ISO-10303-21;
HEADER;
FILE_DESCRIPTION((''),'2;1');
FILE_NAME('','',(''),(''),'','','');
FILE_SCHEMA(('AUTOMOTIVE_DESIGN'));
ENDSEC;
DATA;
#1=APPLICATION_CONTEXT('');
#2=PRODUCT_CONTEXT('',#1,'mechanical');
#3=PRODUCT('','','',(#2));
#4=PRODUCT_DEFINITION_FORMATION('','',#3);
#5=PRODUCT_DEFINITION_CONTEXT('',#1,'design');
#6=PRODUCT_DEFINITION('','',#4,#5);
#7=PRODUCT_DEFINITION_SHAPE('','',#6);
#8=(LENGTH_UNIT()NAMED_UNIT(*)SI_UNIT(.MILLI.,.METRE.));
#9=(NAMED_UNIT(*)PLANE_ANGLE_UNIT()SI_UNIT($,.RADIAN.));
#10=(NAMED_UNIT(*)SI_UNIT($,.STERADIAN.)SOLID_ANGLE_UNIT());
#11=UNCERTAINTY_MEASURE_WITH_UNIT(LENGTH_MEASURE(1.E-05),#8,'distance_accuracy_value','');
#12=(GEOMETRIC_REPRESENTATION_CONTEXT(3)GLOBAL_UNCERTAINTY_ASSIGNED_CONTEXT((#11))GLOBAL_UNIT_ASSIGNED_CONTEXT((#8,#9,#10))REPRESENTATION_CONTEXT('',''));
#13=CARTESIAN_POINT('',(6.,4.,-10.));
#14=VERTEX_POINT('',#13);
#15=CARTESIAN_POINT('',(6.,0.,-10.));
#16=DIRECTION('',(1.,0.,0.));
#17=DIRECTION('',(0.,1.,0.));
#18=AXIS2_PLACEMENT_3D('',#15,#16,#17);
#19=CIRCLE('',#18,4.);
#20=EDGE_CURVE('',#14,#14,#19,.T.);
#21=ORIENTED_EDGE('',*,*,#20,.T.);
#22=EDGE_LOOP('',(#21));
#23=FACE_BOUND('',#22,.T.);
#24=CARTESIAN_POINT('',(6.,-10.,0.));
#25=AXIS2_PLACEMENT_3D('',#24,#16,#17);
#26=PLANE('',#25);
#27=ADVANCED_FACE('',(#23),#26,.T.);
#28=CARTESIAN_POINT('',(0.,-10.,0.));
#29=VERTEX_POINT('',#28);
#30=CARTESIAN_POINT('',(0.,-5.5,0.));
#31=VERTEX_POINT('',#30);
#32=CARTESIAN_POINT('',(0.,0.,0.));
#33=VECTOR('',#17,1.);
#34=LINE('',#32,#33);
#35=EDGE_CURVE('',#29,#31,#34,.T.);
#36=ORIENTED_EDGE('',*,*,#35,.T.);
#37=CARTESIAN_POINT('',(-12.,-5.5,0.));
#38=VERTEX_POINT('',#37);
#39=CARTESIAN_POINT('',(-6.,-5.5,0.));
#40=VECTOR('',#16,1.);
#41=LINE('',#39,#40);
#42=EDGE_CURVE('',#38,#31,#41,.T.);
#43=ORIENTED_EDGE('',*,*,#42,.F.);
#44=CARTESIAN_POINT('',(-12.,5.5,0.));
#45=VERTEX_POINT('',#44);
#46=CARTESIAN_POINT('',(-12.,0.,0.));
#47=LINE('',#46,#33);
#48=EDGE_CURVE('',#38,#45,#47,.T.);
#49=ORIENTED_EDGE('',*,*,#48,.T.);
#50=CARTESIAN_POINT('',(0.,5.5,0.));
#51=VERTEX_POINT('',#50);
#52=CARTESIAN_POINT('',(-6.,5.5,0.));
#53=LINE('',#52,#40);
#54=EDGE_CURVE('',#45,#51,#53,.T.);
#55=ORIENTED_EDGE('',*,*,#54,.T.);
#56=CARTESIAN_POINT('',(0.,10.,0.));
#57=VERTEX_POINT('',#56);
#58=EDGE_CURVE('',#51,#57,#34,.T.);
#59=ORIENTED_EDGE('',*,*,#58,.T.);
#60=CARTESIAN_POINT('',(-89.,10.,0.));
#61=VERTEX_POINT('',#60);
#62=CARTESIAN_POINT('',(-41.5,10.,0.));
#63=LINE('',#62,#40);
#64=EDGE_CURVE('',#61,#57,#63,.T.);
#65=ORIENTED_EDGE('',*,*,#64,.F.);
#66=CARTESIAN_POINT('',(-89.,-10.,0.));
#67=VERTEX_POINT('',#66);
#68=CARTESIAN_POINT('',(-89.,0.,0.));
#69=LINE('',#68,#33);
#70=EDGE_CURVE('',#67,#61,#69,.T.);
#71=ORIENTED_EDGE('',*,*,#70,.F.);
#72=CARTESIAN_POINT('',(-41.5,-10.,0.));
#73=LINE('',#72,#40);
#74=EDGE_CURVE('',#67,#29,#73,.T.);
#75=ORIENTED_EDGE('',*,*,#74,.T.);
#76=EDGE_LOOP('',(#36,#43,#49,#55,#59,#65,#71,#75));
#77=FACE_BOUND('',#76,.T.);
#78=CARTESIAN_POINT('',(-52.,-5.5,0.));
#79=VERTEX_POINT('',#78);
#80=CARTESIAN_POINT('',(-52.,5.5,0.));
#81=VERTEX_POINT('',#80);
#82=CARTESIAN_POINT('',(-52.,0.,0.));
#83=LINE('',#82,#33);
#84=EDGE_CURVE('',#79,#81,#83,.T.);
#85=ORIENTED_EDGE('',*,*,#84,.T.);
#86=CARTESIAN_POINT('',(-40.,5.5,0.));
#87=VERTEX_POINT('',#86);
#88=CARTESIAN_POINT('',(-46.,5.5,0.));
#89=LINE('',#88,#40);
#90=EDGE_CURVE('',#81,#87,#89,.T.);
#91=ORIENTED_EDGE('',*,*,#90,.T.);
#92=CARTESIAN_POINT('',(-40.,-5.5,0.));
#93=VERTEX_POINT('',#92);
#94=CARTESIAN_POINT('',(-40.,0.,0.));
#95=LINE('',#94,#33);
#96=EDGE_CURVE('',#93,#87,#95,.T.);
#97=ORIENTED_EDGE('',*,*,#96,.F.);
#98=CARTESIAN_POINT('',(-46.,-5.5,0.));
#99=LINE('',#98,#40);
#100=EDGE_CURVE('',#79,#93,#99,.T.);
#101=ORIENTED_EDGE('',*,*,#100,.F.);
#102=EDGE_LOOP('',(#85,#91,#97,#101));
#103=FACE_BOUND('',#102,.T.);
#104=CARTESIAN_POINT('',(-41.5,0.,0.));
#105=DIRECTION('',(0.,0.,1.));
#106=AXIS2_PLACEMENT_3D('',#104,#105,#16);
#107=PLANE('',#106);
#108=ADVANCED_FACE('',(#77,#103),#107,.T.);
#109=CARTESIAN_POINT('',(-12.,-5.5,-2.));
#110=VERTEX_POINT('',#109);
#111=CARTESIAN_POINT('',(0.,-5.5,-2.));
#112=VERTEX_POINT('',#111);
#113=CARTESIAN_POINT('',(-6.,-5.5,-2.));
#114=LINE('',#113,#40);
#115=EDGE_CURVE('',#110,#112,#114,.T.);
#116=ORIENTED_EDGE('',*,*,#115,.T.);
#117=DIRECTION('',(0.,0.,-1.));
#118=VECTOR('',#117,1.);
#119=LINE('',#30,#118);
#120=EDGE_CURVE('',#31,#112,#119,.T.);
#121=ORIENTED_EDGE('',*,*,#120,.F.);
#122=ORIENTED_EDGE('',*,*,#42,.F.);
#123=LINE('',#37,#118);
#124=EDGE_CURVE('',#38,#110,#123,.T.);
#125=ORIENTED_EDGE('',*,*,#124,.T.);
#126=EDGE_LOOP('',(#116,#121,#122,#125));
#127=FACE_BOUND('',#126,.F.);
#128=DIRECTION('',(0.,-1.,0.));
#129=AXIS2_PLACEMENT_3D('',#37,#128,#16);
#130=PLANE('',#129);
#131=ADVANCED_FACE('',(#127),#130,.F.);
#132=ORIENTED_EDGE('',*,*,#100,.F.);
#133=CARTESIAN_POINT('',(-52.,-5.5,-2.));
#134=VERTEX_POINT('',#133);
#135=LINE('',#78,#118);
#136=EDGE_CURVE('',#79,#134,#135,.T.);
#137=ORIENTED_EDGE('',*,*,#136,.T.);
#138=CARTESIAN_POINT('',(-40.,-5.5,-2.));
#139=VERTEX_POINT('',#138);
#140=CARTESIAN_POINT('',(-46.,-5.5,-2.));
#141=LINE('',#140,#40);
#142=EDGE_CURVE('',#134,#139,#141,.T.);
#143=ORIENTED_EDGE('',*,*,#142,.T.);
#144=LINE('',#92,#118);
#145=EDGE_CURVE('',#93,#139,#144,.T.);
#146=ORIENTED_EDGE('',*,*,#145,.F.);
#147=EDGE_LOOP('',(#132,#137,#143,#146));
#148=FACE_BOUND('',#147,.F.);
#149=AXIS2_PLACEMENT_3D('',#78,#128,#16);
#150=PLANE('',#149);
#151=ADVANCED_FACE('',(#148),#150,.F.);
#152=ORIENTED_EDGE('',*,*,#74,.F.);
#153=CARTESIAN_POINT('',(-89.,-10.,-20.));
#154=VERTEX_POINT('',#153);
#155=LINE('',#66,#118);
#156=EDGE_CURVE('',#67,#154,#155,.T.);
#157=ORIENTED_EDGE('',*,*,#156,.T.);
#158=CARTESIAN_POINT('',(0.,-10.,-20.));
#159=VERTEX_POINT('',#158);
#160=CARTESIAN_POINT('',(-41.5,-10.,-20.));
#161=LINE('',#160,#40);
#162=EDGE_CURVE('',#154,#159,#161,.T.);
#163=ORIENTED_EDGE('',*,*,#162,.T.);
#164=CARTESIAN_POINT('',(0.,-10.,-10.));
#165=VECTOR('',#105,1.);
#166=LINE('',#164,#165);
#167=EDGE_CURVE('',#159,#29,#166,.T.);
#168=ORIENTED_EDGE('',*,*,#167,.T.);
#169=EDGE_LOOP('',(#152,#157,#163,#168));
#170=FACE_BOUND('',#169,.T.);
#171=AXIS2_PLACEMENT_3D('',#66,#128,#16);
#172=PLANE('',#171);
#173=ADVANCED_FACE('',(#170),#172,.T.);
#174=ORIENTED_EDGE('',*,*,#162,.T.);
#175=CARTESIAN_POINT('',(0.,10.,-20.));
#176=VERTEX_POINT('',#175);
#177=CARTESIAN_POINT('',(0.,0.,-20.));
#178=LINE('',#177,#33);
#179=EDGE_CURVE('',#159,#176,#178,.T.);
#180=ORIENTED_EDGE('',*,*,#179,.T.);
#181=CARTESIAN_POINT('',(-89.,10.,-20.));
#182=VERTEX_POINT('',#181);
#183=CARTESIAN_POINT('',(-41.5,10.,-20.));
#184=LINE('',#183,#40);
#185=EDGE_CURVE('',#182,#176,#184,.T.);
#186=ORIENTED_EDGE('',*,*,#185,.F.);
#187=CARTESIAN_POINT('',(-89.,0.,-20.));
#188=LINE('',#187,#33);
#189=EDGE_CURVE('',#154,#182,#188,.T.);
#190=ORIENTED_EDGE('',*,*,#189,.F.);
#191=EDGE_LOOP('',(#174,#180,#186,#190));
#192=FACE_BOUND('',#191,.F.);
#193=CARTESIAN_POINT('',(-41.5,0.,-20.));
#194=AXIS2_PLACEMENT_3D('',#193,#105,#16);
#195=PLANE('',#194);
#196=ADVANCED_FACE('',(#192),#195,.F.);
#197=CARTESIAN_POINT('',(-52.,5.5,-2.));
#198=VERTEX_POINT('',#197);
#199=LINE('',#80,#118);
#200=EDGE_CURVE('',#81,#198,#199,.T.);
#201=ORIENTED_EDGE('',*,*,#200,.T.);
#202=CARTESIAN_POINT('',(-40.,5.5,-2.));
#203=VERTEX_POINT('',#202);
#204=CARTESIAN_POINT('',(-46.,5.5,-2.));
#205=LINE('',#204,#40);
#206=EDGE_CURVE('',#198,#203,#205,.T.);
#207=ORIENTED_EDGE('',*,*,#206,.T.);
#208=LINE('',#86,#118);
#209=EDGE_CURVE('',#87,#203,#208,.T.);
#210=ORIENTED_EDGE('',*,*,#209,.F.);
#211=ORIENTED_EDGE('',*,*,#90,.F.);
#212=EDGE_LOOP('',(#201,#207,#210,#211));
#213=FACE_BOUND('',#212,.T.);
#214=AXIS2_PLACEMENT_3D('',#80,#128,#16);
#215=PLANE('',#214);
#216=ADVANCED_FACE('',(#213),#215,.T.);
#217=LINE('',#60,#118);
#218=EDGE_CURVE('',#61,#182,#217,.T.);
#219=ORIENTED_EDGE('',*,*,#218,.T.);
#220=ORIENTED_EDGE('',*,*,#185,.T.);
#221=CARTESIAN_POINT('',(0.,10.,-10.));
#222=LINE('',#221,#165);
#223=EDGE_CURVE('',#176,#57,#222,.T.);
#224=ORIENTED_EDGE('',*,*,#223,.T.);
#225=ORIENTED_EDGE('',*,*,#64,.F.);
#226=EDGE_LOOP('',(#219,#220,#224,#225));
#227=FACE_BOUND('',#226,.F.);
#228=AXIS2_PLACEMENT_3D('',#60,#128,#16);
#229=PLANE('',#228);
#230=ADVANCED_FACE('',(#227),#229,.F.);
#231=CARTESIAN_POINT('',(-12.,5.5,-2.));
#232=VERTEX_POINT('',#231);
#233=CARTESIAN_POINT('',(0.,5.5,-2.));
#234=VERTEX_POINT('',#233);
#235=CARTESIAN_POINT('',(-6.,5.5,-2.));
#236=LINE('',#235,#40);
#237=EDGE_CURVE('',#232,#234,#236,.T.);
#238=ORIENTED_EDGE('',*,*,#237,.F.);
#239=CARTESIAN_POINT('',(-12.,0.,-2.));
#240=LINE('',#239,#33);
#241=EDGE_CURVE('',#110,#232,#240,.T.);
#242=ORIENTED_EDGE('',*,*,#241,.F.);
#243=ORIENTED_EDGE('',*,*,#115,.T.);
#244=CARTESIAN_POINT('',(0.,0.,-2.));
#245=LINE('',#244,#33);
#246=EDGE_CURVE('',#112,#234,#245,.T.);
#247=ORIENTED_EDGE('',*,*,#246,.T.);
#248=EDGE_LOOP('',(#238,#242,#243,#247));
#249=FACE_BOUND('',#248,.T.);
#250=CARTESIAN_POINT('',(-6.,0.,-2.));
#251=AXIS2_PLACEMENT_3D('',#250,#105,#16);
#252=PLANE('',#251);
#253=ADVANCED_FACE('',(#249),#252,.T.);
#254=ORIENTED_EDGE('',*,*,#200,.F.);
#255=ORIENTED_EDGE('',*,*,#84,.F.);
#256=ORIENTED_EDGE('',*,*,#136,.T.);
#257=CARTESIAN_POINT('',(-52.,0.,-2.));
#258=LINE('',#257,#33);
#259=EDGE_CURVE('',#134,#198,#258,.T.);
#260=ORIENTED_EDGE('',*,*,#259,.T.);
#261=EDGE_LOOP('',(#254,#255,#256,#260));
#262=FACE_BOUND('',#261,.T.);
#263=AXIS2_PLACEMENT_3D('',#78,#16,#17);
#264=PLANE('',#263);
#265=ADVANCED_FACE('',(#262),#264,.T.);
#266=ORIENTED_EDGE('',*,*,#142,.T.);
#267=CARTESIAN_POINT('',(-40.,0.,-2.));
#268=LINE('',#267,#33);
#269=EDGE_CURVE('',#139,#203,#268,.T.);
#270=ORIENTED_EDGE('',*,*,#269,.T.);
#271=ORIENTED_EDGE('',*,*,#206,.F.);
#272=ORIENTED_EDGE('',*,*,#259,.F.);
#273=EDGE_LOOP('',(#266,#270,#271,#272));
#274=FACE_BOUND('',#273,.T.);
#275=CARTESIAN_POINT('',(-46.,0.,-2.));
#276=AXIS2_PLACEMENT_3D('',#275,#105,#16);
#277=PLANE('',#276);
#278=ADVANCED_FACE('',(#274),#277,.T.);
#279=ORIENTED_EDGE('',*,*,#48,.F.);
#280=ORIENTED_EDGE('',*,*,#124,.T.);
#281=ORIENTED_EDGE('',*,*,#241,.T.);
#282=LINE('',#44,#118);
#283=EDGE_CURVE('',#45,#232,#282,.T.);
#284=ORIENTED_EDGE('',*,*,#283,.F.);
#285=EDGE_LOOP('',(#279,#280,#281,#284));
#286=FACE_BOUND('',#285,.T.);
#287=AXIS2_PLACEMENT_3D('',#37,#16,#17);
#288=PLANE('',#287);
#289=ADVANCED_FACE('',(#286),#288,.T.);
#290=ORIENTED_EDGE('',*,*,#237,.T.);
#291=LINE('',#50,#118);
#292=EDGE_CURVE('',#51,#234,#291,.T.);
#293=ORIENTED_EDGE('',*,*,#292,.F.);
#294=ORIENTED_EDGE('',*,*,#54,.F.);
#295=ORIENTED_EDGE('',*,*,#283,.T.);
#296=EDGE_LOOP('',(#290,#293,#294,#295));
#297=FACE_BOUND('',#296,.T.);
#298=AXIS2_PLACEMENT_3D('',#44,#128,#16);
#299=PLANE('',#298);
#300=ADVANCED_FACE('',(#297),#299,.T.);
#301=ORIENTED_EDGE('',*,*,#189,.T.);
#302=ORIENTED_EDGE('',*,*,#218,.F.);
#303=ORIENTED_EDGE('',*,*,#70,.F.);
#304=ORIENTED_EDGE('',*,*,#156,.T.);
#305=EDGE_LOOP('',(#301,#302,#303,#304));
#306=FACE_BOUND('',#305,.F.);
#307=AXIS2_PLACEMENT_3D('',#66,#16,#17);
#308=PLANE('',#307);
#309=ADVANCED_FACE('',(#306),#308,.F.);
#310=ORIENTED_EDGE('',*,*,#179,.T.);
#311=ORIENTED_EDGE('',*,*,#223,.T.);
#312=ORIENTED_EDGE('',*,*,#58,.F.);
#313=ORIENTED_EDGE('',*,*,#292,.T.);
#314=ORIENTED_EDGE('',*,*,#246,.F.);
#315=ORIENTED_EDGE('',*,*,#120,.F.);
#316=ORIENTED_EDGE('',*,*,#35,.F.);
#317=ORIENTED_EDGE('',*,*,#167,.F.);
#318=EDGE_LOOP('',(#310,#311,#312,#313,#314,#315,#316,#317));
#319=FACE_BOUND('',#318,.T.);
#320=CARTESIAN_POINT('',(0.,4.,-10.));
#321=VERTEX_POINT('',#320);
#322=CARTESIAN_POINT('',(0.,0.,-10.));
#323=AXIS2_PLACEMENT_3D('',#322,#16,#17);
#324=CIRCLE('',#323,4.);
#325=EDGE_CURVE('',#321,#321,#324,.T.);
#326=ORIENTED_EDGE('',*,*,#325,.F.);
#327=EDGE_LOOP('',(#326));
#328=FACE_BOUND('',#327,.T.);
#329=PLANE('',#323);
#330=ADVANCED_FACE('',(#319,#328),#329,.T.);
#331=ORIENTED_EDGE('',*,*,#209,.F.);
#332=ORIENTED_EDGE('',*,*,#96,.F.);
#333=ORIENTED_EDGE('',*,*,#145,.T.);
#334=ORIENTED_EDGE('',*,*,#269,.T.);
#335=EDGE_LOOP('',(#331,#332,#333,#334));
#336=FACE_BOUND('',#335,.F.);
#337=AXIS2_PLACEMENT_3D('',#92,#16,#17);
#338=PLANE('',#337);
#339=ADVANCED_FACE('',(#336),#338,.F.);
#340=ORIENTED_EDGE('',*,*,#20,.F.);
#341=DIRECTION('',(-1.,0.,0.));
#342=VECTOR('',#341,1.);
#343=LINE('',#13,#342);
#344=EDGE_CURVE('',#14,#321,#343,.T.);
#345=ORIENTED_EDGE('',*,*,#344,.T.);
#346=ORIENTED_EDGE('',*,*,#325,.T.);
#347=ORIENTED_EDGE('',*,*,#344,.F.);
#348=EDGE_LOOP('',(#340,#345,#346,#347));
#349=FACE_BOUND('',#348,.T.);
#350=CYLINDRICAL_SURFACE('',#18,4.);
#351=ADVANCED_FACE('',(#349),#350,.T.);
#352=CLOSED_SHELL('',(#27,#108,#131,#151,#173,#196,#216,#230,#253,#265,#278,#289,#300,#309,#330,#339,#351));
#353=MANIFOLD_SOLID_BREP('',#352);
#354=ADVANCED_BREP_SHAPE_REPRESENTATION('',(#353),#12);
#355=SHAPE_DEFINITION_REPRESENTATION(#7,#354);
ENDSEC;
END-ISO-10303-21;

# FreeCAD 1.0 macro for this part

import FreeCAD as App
import Part
import Sketcher
from FreeCAD import Vector
Q = App.Units.Quantity


def add_polygon(sketch, points):
    """Adds a closed chain of lines whose ends are joined by coincident constraints."""
    first, n = sketch.GeometryCount, len(points)
    for a, b in zip(points, points[1:] + points[:1]):
        sketch.addGeometry(Part.LineSegment(App.Vector(*a, 0), App.Vector(*b, 0)), False)
    for i in range(n):
        sketch.addConstraint(Sketcher.Constraint("Coincident", first + i, 2, first + (i + 1) % n, 1))

doc = App.newDocument("Part")
body = doc.addObject("PartDesign::Body", "Body")

# Sketch on XY plane
sketch1 = body.newObject("Sketcher::SketchObject", "Sketch")
sketch1.AttachmentSupport = (doc.getObject("XY_Plane"), [""])
sketch1.MapMode = "FlatFace"
add_polygon(sketch1, [(-47.5, 10), (-47.5, -10), (47.5, -10), (47.5, 10)])  # lines 0-3
sketch1.addConstraint([
    Sketcher.Constraint("Vertical", 0),
    Sketcher.Constraint("Horizontal", 1),
    Sketcher.Constraint("Vertical", 2),
    Sketcher.Constraint("Horizontal", 3),
    Sketcher.Constraint("Symmetric", 0, 2, 2, 2, -1, 1),
    Sketcher.Constraint("DistanceX", 1, 1, 1, 2, Q("95 mm")),
    Sketcher.Constraint("DistanceY", 0, 2, 0, 1, Q("20 mm")),
])
pad1 = body.newObject("PartDesign::Pad", "Pad")
pad1.Profile = sketch1
pad1.Length = 20
pad1.Reversed = True

# Sketch on YZ plane
sketch2 = body.newObject("Sketcher::SketchObject", "Sketch001")
sketch2.AttachmentSupport = (doc.getObject("YZ_Plane"), [""])
sketch2.MapMode = "FlatFace"
sketch2.AttachmentOffset = App.Placement(Vector(0, 0, 47.5), App.Rotation())
add_polygon(sketch2, [(-10, 0), (-10, -20), (10, -20), (10, 0)])  # lines 0-3
sketch2.addGeometry(Part.Circle(Vector(0, -10, 0), Vector(0, 0, 1), 4), False)  # 4
sketch2.addConstraint([
    Sketcher.Constraint("Vertical", 0),
    Sketcher.Constraint("Horizontal", 1),
    Sketcher.Constraint("Vertical", 2),
    Sketcher.Constraint("Horizontal", 3),
    Sketcher.Constraint("Symmetric", 2, 2, 3, 2, -1, 1),
    Sketcher.Constraint("PointOnObject", 4, 3, -2),
    Sketcher.Constraint("Equal", 3, 0),
    Sketcher.Constraint("Diameter", 4, Q("8 mm")),
    Sketcher.Constraint("DistanceX", 1, 1, 1, 2, Q("20 mm")),
    Sketcher.Constraint("DistanceY", 4, 3, -1, 1, Q("10 mm")),
])
pocket1 = body.newObject("PartDesign::Pocket", "Pocket")
pocket1.Profile = sketch2
pocket1.Length = 6

# Sketch on XY plane
sketch3 = body.newObject("Sketcher::SketchObject", "Sketch002")
sketch3.AttachmentSupport = (doc.getObject("XY_Plane"), [""])
sketch3.MapMode = "FlatFace"
add_polygon(sketch3, [(29.5, 5.5), (29.5, -5.5), (41.5, -5.5), (41.5, 5.5)])  # lines 0-3
add_polygon(sketch3, [(-10.5, 5.5), (-10.5, -5.5), (1.5, -5.5), (1.5, 5.5)])  # lines 4-7
sketch3.addConstraint([
    Sketcher.Constraint("Vertical", 0),
    Sketcher.Constraint("Horizontal", 1),
    Sketcher.Constraint("Vertical", 2),
    Sketcher.Constraint("Horizontal", 3),
    Sketcher.Constraint("Vertical", 4),
    Sketcher.Constraint("Horizontal", 5),
    Sketcher.Constraint("Vertical", 6),
    Sketcher.Constraint("Horizontal", 7),
    Sketcher.Constraint("Horizontal", 1, 2, 4, 2),
    Sketcher.Constraint("Horizontal", 3, 2, 6, 2),
    Sketcher.Constraint("Equal", 3, 5),
    Sketcher.Constraint("DistanceX", 1, 1, 1, 2, Q("12 mm")),
    Sketcher.Constraint("DistanceY", 0, 2, 0, 1, Q("11 mm")),
    Sketcher.Constraint("DistanceX", 4, 2, 0, 2, Q("40 mm")),
    Sketcher.Constraint("DistanceX", -1, 1, 0, 2, Q("29.5 mm")),
    Sketcher.Constraint("DistanceY", 0, 2, -1, 1, Q("5.5 mm")),
])
pocket2 = body.newObject("PartDesign::Pocket", "Pocket001")
pocket2.Profile = sketch3
pocket2.Length = 2
body2 = doc.addObject("PartDesign::Body", "Body001")
doc.recompute()

body.Placement = App.Placement(Vector(-10, 0, -47.5), App.Rotation(Vector(0, 1, 0), 270))
boolean = body2.newObject("PartDesign::Boolean", "Boolean")
boolean.Type = "Fuse"
boolean.addObjects([body])
body3 = doc.addObject("PartDesign::Body", "Body002")
doc.recompute()

body2.Placement = App.Placement(Vector(6, 0, -10), App.Rotation(Vector(0, 1, 0), 90))
boolean2 = body3.newObject("PartDesign::Boolean", "Boolean001")
boolean2.Type = "Fuse"
boolean2.addObjects([body2])

doc.recompute()
